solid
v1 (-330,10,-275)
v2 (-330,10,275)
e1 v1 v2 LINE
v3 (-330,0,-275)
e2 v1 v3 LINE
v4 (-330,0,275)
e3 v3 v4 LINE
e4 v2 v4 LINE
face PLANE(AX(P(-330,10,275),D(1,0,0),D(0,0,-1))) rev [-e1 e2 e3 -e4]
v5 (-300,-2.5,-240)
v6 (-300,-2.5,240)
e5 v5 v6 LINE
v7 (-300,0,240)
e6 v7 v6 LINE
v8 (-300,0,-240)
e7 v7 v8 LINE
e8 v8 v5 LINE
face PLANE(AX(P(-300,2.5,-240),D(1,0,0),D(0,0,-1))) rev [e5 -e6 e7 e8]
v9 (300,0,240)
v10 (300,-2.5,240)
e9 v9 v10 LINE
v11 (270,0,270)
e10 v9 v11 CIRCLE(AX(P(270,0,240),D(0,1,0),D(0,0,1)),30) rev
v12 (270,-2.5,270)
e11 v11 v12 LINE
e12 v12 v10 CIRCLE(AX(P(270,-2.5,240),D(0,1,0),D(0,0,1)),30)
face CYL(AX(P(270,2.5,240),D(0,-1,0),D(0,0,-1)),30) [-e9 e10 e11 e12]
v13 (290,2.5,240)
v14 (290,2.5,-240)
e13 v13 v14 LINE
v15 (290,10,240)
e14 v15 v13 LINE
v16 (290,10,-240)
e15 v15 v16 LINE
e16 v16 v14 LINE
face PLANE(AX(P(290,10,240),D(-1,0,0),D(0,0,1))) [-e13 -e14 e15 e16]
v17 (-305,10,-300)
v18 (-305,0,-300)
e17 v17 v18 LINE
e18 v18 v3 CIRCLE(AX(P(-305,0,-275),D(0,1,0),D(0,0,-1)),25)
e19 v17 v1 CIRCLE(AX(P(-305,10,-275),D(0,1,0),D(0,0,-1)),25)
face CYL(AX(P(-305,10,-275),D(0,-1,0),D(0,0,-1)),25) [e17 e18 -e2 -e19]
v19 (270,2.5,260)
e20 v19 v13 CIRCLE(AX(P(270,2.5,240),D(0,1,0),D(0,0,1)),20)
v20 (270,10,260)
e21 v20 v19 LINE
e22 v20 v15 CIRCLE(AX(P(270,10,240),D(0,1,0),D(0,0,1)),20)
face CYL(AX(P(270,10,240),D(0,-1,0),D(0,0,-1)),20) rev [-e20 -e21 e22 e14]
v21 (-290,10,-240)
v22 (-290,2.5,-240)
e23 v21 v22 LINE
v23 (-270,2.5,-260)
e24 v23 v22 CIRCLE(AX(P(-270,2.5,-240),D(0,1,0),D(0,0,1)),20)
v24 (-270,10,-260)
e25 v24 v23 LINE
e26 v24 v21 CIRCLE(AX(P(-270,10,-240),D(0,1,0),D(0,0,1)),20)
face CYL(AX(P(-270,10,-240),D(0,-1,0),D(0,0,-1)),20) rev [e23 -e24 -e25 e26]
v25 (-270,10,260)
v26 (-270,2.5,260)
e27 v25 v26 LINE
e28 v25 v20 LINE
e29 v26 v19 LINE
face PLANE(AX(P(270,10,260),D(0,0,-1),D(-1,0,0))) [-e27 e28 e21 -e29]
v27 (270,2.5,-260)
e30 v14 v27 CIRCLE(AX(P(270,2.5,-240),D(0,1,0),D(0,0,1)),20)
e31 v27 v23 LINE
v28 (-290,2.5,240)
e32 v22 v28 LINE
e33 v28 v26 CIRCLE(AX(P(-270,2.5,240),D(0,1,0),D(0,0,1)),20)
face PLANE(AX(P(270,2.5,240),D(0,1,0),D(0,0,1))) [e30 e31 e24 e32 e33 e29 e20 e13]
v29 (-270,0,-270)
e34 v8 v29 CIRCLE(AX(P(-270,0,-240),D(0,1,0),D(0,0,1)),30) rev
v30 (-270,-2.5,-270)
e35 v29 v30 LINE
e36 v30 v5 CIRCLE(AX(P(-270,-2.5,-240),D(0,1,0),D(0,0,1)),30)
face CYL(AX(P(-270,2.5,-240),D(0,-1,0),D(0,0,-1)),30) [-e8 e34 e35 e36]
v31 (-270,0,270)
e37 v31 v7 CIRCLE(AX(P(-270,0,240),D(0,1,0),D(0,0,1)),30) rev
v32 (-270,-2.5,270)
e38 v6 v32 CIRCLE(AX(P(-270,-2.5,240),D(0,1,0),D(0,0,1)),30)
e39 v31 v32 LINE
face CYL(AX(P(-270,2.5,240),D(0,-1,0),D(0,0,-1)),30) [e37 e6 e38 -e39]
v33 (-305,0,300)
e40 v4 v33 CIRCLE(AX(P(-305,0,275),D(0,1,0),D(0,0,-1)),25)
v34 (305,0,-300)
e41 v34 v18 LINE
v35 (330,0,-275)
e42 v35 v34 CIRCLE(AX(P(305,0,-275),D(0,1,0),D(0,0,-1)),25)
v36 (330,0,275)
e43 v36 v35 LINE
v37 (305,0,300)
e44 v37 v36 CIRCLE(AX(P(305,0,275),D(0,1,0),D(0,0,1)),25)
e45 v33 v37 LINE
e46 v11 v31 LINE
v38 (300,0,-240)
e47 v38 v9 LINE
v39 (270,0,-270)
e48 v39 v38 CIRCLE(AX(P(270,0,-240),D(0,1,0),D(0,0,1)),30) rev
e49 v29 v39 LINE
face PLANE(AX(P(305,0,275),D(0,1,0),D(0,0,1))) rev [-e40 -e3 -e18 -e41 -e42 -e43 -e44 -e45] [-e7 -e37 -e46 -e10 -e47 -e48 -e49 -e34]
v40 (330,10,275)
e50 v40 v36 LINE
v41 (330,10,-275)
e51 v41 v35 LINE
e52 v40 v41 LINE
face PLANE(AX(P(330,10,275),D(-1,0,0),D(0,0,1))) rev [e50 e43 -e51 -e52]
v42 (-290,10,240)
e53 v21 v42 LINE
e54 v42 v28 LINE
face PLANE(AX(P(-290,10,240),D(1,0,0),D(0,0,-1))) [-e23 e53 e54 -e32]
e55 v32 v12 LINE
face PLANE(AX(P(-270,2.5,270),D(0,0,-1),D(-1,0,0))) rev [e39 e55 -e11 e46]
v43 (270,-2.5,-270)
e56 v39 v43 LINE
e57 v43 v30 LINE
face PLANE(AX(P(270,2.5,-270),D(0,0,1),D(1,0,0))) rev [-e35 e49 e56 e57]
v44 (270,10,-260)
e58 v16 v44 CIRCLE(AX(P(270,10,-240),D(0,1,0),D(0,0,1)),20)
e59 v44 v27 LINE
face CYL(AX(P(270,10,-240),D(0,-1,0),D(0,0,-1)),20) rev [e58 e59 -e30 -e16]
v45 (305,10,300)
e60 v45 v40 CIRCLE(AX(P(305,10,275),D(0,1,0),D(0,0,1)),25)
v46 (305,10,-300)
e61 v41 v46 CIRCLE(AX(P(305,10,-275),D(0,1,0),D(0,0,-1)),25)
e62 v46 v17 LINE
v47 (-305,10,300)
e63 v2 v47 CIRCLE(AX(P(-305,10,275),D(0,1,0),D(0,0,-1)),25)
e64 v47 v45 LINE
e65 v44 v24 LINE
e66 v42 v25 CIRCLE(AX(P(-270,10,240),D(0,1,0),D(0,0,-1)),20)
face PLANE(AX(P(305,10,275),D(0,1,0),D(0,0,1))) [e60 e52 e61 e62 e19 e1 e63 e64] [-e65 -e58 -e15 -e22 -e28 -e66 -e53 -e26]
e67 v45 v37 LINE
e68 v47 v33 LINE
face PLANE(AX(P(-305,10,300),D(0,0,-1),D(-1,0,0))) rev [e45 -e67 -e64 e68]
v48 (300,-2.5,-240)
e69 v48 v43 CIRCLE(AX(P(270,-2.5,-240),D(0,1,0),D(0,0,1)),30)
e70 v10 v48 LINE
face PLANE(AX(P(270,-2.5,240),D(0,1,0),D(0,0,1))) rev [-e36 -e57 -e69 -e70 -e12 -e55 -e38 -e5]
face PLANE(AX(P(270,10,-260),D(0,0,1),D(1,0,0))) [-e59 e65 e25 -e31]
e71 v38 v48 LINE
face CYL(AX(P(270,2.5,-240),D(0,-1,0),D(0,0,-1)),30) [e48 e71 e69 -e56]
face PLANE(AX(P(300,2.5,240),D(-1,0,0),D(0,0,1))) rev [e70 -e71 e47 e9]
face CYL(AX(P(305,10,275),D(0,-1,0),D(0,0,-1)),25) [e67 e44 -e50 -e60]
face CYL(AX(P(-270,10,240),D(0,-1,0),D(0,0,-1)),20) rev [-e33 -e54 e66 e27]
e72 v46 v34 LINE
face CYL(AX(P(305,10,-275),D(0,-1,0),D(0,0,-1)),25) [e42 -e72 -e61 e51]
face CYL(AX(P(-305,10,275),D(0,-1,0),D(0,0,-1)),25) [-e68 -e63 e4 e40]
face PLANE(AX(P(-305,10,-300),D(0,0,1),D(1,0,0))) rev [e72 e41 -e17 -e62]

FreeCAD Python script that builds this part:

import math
import FreeCAD as App
import Part
import Sketcher

doc = App.newDocument("Part")
body = doc.addObject("PartDesign::Body", "Body")

sketch1 = body.newObject("Sketcher::SketchObject", "Sketch")
sketch1.AttachmentSupport = (doc.getObject("XZ_Plane"), [""])
sketch1.MapMode = "FlatFace"
sketch1.addGeometry(Part.LineSegment(App.Vector(-305, 300, 0), App.Vector(305, 300, 0)), False)
sketch1.addGeometry(Part.ArcOfCircle(Part.Circle(App.Vector(305, 275, 0), App.Vector(0, 0, 1), 25), math.radians(0), math.radians(90)), False)
sketch1.addGeometry(Part.LineSegment(App.Vector(330, 275, 0), App.Vector(330, -275, 0)), False)
sketch1.addGeometry(Part.ArcOfCircle(Part.Circle(App.Vector(305, -275, 0), App.Vector(0, 0, 1), 25), math.radians(-90), math.radians(0)), False)
sketch1.addGeometry(Part.LineSegment(App.Vector(305, -300, 0), App.Vector(-305, -300, 0)), False)
sketch1.addGeometry(Part.ArcOfCircle(Part.Circle(App.Vector(-305, -275, 0), App.Vector(0, 0, 1), 25), math.radians(180), math.radians(270)), False)
sketch1.addGeometry(Part.LineSegment(App.Vector(-330, -275, 0), App.Vector(-330, 275, 0)), False)
sketch1.addGeometry(Part.ArcOfCircle(Part.Circle(App.Vector(-305, 275, 0), App.Vector(0, 0, 1), 25), math.radians(90), math.radians(180)), False)
sketch1.addGeometry(Part.ArcOfCircle(Part.Circle(App.Vector(270, 240, 0), App.Vector(0, 0, 1), 20), math.radians(0), math.radians(90)), False)
sketch1.addGeometry(Part.LineSegment(App.Vector(270, 260, 0), App.Vector(-270, 260, 0)), False)
sketch1.addGeometry(Part.ArcOfCircle(Part.Circle(App.Vector(-270, 240, 0), App.Vector(0, 0, 1), 20), math.radians(90), math.radians(180)), False)
sketch1.addGeometry(Part.LineSegment(App.Vector(-290, 240, 0), App.Vector(-290, -240, 0)), False)
sketch1.addGeometry(Part.ArcOfCircle(Part.Circle(App.Vector(-270, -240, 0), App.Vector(0, 0, 1), 20), math.radians(180), math.radians(270)), False)
sketch1.addGeometry(Part.LineSegment(App.Vector(-270, -260, 0), App.Vector(270, -260, 0)), False)
sketch1.addGeometry(Part.ArcOfCircle(Part.Circle(App.Vector(270, -240, 0), App.Vector(0, 0, 1), 20), math.radians(-90), math.radians(0)), False)
sketch1.addGeometry(Part.LineSegment(App.Vector(290, -240, 0), App.Vector(290, 240, 0)), False)
sketch1.addConstraint(Sketcher.Constraint("Tangent", 0, 2, 1, 2))
sketch1.addConstraint(Sketcher.Constraint("Tangent", 1, 1, 2, 1))
sketch1.addConstraint(Sketcher.Constraint("Tangent", 2, 2, 3, 2))
sketch1.addConstraint(Sketcher.Constraint("Tangent", 3, 1, 4, 1))
sketch1.addConstraint(Sketcher.Constraint("Tangent", 4, 2, 5, 2))
sketch1.addConstraint(Sketcher.Constraint("Tangent", 5, 1, 6, 1))
sketch1.addConstraint(Sketcher.Constraint("Tangent", 6, 2, 7, 2))
sketch1.addConstraint(Sketcher.Constraint("Tangent", 7, 1, 0, 1))
sketch1.addConstraint(Sketcher.Constraint("Tangent", 8, 2, 9, 1))
sketch1.addConstraint(Sketcher.Constraint("Tangent", 9, 2, 10, 1))
sketch1.addConstraint(Sketcher.Constraint("Tangent", 10, 2, 11, 1))
sketch1.addConstraint(Sketcher.Constraint("Tangent", 11, 2, 12, 1))
sketch1.addConstraint(Sketcher.Constraint("Tangent", 12, 2, 13, 1))
sketch1.addConstraint(Sketcher.Constraint("Tangent", 13, 2, 14, 1))
sketch1.addConstraint(Sketcher.Constraint("Tangent", 14, 2, 15, 1))
sketch1.addConstraint(Sketcher.Constraint("Tangent", 15, 2, 8, 1))
sketch1.addConstraint(Sketcher.Constraint("Horizontal", 0))
sketch1.addConstraint(Sketcher.Constraint("Vertical", 2))
sketch1.addConstraint(Sketcher.Constraint("Horizontal", 4))
sketch1.addConstraint(Sketcher.Constraint("Vertical", 6))
sketch1.addConstraint(Sketcher.Constraint("Horizontal", 9))
sketch1.addConstraint(Sketcher.Constraint("Vertical", 11))
sketch1.addConstraint(Sketcher.Constraint("Horizontal", 13))
sketch1.addConstraint(Sketcher.Constraint("Vertical", 15))
sketch1.addConstraint(Sketcher.Constraint("Equal", 1, 3))
sketch1.addConstraint(Sketcher.Constraint("Equal", 3, 5))
sketch1.addConstraint(Sketcher.Constraint("Equal", 5, 7))
sketch1.addConstraint(Sketcher.Constraint("Equal", 8, 10))
sketch1.addConstraint(Sketcher.Constraint("Equal", 10, 12))
sketch1.addConstraint(Sketcher.Constraint("Equal", 12, 14))
sketch1.addConstraint(Sketcher.Constraint("Symmetric", 1, 3, 5, 3, -1, 1))
sketch1.addConstraint(Sketcher.Constraint("Symmetric", 8, 3, 12, 3, -1, 1))
sketch1.addConstraint(Sketcher.Constraint("Radius", 1, 25.0))
sketch1.addConstraint(Sketcher.Constraint("Radius", 8, 20.0))
sketch1.addConstraint(Sketcher.Constraint("DistanceX", 0, 1, 0, 2, 610.0))
sketch1.addConstraint(Sketcher.Constraint("DistanceX", 9, 2, 9, 1, 540.0))
sketch1.addConstraint(Sketcher.Constraint("DistanceY", 2, 2, 2, 1, 550.0))
sketch1.addConstraint(Sketcher.Constraint("DistanceY", 11, 2, 11, 1, 480.0))
pad1 = body.newObject("PartDesign::Pad", "Pad")
pad1.Profile = sketch1
pad1.Length = 10
pad1.Reversed = True

sketch2 = body.newObject("Sketcher::SketchObject", "Sketch001")
sketch2.AttachmentSupport = (doc.getObject("XZ_Plane"), [""])
sketch2.MapMode = "FlatFace"
sketch2.addGeometry(Part.LineSegment(App.Vector(300, 240, 0), App.Vector(300, -240, 0)), False)
sketch2.addGeometry(Part.ArcOfCircle(Part.Circle(App.Vector(270, -240, 0), App.Vector(0, 0, 1), 30), math.radians(-90), math.radians(0)), False)
sketch2.addGeometry(Part.LineSegment(App.Vector(270, -270, 0), App.Vector(-270, -270, 0)), False)
sketch2.addGeometry(Part.ArcOfCircle(Part.Circle(App.Vector(-270, -240, 0), App.Vector(0, 0, 1), 30), math.radians(180), math.radians(270)), False)
sketch2.addGeometry(Part.LineSegment(App.Vector(-300, -240, 0), App.Vector(-300, 240, 0)), False)
sketch2.addGeometry(Part.ArcOfCircle(Part.Circle(App.Vector(-270, 240, 0), App.Vector(0, 0, 1), 30), math.radians(90), math.radians(180)), False)
sketch2.addGeometry(Part.LineSegment(App.Vector(-270, 270, 0), App.Vector(270, 270, 0)), False)
sketch2.addGeometry(Part.ArcOfCircle(Part.Circle(App.Vector(270, 240, 0), App.Vector(0, 0, 1), 30), math.radians(0), math.radians(90)), False)
sketch2.addConstraint(Sketcher.Constraint("Tangent", 0, 2, 1, 2))
sketch2.addConstraint(Sketcher.Constraint("Tangent", 1, 1, 2, 1))
sketch2.addConstraint(Sketcher.Constraint("Tangent", 2, 2, 3, 2))
sketch2.addConstraint(Sketcher.Constraint("Tangent", 3, 1, 4, 1))
sketch2.addConstraint(Sketcher.Constraint("Tangent", 4, 2, 5, 2))
sketch2.addConstraint(Sketcher.Constraint("Tangent", 5, 1, 6, 1))
sketch2.addConstraint(Sketcher.Constraint("Tangent", 6, 2, 7, 2))
sketch2.addConstraint(Sketcher.Constraint("Tangent", 7, 1, 0, 1))
sketch2.addConstraint(Sketcher.Constraint("Vertical", 0))
sketch2.addConstraint(Sketcher.Constraint("Horizontal", 2))
sketch2.addConstraint(Sketcher.Constraint("Vertical", 4))
sketch2.addConstraint(Sketcher.Constraint("Horizontal", 6))
sketch2.addConstraint(Sketcher.Constraint("Equal", 1, 3))
sketch2.addConstraint(Sketcher.Constraint("Equal", 3, 5))
sketch2.addConstraint(Sketcher.Constraint("Equal", 5, 7))
sketch2.addConstraint(Sketcher.Constraint("Symmetric", 1, 3, 5, 3, -1, 1))
sketch2.addConstraint(Sketcher.Constraint("Radius", 1, 30.0))
sketch2.addConstraint(Sketcher.Constraint("DistanceX", 2, 2, 2, 1, 540.0))
sketch2.addConstraint(Sketcher.Constraint("DistanceY", 0, 2, 0, 1, 480.0))
pad2 = body.newObject("PartDesign::Pad", "Pad001")
pad2.Profile = sketch2
pad2.Length = 5
pad2.Midplane = True

doc.recompute()
